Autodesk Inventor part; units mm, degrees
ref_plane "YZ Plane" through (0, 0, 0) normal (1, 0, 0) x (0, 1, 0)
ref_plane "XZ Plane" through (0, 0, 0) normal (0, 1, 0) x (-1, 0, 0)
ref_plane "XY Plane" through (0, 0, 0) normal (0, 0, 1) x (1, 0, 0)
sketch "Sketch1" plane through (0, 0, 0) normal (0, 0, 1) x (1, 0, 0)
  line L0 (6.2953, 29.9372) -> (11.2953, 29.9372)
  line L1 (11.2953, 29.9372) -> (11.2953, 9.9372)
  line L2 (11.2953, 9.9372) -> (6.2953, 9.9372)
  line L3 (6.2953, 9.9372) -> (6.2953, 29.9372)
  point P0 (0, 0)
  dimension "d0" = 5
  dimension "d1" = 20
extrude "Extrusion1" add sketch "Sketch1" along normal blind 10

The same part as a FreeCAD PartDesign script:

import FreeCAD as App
import Part
import Sketcher
from FreeCAD import Vector
Q = App.Units.Quantity


def add_polygon(sketch, points):
    """Adds a closed chain of lines whose ends are joined by coincident constraints."""
    first, n = sketch.GeometryCount, len(points)
    for a, b in zip(points, points[1:] + points[:1]):
        sketch.addGeometry(Part.LineSegment(App.Vector(*a, 0), App.Vector(*b, 0)), False)
    for i in range(n):
        sketch.addConstraint(Sketcher.Constraint("Coincident", first + i, 2, first + (i + 1) % n, 1))

doc = App.newDocument("Part")
body = doc.addObject("PartDesign::Body", "Body")

sketch1 = body.newObject("Sketcher::SketchObject", "Sketch")
sketch1.AttachmentSupport = (doc.getObject("XY_Plane"), [""])
sketch1.MapMode = "FlatFace"
add_polygon(sketch1, [(11.3, 29.9), (6.3, 29.9), (6.3, 9.9), (11.3, 9.9)])
sketch1.addConstraint([
    Sketcher.Constraint("Horizontal", 0),
    Sketcher.Constraint("Vertical", 1),
    Sketcher.Constraint("Horizontal", 2),
    Sketcher.Constraint("Vertical", 3),
    Sketcher.Constraint("DistanceX", 0, 2, 0, 1, Q("5 mm")),
    Sketcher.Constraint("DistanceY", 1, 2, 1, 1, Q("20 mm")),
    Sketcher.Constraint("DistanceX", -1, 1, 0, 2, Q("6.2953 mm")),
    Sketcher.Constraint("DistanceY", -1, 1, 0, 2, Q("29.9372 mm")),
])
pad1 = body.newObject("PartDesign::Pad", "Pad")
pad1.Profile = sketch1
pad1.Length = 10

doc.recompute()
